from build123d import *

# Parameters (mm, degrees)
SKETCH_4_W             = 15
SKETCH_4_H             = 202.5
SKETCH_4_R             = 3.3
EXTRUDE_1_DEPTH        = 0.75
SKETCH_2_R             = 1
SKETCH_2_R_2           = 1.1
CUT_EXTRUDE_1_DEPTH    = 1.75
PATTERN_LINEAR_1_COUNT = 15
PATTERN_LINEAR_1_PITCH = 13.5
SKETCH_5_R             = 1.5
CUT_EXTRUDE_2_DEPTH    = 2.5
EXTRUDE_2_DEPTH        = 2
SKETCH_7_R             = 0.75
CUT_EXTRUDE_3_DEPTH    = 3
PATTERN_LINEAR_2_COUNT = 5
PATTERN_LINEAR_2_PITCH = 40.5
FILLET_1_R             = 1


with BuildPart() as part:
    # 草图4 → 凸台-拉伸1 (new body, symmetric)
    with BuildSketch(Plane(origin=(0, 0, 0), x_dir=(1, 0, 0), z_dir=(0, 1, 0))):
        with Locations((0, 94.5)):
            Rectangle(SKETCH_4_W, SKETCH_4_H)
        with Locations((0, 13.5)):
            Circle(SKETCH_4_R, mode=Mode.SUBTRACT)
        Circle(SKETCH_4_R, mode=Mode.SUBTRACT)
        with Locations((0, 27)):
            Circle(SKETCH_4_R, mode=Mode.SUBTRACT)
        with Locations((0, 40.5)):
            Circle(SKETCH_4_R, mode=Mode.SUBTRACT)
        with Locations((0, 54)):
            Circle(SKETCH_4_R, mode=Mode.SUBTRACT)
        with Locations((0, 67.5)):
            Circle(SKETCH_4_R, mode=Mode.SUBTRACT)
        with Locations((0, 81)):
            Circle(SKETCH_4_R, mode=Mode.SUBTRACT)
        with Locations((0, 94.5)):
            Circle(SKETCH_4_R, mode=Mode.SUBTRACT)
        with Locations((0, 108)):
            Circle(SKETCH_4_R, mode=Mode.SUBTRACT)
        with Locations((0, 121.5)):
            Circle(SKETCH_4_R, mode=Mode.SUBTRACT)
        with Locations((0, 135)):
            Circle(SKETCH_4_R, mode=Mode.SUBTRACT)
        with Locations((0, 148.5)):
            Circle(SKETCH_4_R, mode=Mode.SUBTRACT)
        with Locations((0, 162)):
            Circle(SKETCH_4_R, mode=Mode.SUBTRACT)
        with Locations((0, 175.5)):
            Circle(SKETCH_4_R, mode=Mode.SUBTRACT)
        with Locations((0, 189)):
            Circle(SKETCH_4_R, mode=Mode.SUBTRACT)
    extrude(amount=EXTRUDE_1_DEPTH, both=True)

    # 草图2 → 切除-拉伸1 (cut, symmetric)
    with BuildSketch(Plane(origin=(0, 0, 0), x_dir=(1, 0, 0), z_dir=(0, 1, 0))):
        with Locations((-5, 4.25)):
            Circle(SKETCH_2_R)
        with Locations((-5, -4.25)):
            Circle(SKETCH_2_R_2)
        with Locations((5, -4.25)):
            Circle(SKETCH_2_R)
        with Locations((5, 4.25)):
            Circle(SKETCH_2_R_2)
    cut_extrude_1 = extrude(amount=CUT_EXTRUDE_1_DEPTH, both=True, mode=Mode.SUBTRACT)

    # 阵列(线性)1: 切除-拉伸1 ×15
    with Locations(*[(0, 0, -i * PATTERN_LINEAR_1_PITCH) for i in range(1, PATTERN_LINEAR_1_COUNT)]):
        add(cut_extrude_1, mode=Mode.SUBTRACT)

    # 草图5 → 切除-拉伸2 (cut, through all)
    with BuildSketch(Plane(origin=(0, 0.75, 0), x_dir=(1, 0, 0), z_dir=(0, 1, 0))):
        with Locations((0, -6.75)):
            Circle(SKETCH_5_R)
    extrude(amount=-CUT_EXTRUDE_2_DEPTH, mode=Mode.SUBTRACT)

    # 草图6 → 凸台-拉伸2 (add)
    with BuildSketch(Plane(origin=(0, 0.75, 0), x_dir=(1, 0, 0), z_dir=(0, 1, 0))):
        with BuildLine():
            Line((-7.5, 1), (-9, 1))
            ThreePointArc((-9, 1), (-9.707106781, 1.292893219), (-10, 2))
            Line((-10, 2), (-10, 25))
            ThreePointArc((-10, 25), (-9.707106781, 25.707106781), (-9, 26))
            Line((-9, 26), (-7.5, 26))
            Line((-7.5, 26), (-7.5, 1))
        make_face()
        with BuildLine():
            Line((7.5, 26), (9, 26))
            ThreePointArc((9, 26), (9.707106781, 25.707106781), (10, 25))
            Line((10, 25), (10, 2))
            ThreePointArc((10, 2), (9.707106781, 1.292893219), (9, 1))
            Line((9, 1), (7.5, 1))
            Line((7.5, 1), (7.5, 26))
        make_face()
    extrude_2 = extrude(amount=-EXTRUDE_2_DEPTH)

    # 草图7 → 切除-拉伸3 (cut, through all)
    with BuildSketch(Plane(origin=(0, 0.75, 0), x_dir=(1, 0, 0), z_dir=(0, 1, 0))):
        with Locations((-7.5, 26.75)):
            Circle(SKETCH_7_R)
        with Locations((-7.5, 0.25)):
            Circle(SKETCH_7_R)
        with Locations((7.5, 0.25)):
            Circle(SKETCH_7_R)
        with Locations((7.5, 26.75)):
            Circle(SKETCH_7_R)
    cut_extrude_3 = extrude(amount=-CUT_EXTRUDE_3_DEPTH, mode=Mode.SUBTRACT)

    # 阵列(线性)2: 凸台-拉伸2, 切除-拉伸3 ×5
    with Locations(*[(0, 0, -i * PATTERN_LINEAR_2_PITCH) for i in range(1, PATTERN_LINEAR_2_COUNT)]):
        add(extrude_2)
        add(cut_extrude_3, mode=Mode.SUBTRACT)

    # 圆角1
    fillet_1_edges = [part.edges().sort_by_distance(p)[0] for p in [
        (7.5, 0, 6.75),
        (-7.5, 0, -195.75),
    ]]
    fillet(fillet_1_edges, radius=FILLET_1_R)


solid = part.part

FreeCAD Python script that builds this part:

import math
import FreeCAD as App
import Part
import Sketcher

V = App.Vector
Q = App.Units.Quantity


def edges_at(feature, points):
    """Names of the edges that pass closest to the given points."""
    edges = feature.Shape.Edges
    near = lambda p: min(range(len(edges)), key=lambda i: edges[i].distToShape(Part.Vertex(*p))[0])
    return sorted({f"Edge{near(p) + 1}" for p in points})


def add_polygon(sketch, points):
    """Adds a closed chain of lines whose ends are joined by coincident constraints."""
    first, n = sketch.GeometryCount, len(points)
    for a, b in zip(points, points[1:] + points[:1]):
        sketch.addGeometry(Part.LineSegment(App.Vector(*a, 0), App.Vector(*b, 0)), False)
    for i in range(n):
        sketch.addConstraint(Sketcher.Constraint("Coincident", first + i, 2, first + (i + 1) % n, 1))

doc = App.newDocument("Part")
params = doc.addObject("Spreadsheet::Sheet", "Params")
for row, (alias, value) in enumerate([
    ("sketch1_diameter", "6.6 mm"),
    ("sketch1_width", "15 mm"),
    ("sketch1_height", "202.5 mm"),
    ("pad1_length", "1.5 mm"),
    ("sketch2_diameter", "2 mm"),
    ("sketch2_diameter2", "2.2 mm"),
    ("pocket1_length", "3.5 mm"),
    ("linearpattern_pitch", "13.5 mm"),
    ("sketch3_diameter", "3 mm"),
    ("sketch4_radius", "1 mm"),
    ("sketch4_height", "25 mm"),
    ("sketch4_width", "1.5 mm"),
    ("pad2_length", "2 mm"),
    ("sketch5_diameter", "1.5 mm"),
    ("linearpattern2_pitch", "40.5 mm"),
    ("fillet_radius", "1 mm"),
], start=1):
    params.set(f"A{row}", alias)
    params.set(f"B{row}", "=" + value)
    params.setAlias(f"B{row}", alias)

body = doc.addObject("PartDesign::Body", "Body")

# Sketch on XZ plane
sketch1 = body.newObject("Sketcher::SketchObject", "Sketch")
sketch1.AttachmentSupport = (doc.getObject("XZ_Plane"), [""])
sketch1.MapMode = "FlatFace"
add_polygon(sketch1, [(-7.5, -195.8), (-7.5, 6.8), (7.5, 6.8), (7.5, -195.8)])  # lines 0-3
sketch1.addGeometry(Part.Circle(V(0, 0, 0), V(0, 0, 1), 3.3), False)  # 4
sketch1.addGeometry(Part.Circle(V(0, -13.5, 0), V(0, 0, 1), 3.3), False)  # 5
sketch1.addGeometry(Part.Circle(V(0, -27, 0), V(0, 0, 1), 3.3), False)  # 6
sketch1.addGeometry(Part.Circle(V(0, -40.5, 0), V(0, 0, 1), 3.3), False)  # 7
sketch1.addGeometry(Part.Circle(V(0, -54, 0), V(0, 0, 1), 3.3), False)  # 8
sketch1.addGeometry(Part.Circle(V(0, -67.5, 0), V(0, 0, 1), 3.3), False)  # 9
sketch1.addGeometry(Part.Circle(V(0, -81, 0), V(0, 0, 1), 3.3), False)  # 10
sketch1.addGeometry(Part.Circle(V(0, -94.5, 0), V(0, 0, 1), 3.3), False)  # 11
sketch1.addGeometry(Part.Circle(V(0, -108, 0), V(0, 0, 1), 3.3), False)  # 12
sketch1.addGeometry(Part.Circle(V(0, -121.5, 0), V(0, 0, 1), 3.3), False)  # 13
sketch1.addGeometry(Part.Circle(V(0, -135, 0), V(0, 0, 1), 3.3), False)  # 14
sketch1.addGeometry(Part.Circle(V(0, -148.5, 0), V(0, 0, 1), 3.3), False)  # 15
sketch1.addGeometry(Part.Circle(V(0, -162, 0), V(0, 0, 1), 3.3), False)  # 16
sketch1.addGeometry(Part.Circle(V(0, -175.5, 0), V(0, 0, 1), 3.3), False)  # 17
sketch1.addGeometry(Part.Circle(V(0, -189, 0), V(0, 0, 1), 3.3), False)  # 18
sketch1.addConstraint(Sketcher.Constraint("Vertical", 0))
sketch1.addConstraint(Sketcher.Constraint("Horizontal", 1))
sketch1.addConstraint(Sketcher.Constraint("Vertical", 2))
sketch1.addConstraint(Sketcher.Constraint("Horizontal", 3))
sketch1.addConstraint(Sketcher.Constraint("Coincident", 4, 3, -1, 1))
sketch1.addConstraint(Sketcher.Constraint("Equal", 4, 5))
sketch1.addConstraint(Sketcher.Constraint("Equal", 5, 6))
sketch1.addConstraint(Sketcher.Constraint("Equal", 6, 7))
sketch1.addConstraint(Sketcher.Constraint("Equal", 7, 8))
sketch1.addConstraint(Sketcher.Constraint("Equal", 8, 9))
sketch1.addConstraint(Sketcher.Constraint("Equal", 9, 10))
sketch1.addConstraint(Sketcher.Constraint("Equal", 10, 11))
sketch1.addConstraint(Sketcher.Constraint("Equal", 11, 12))
sketch1.addConstraint(Sketcher.Constraint("Equal", 12, 13))
sketch1.addConstraint(Sketcher.Constraint("Equal", 13, 14))
sketch1.addConstraint(Sketcher.Constraint("Equal", 14, 15))
sketch1.addConstraint(Sketcher.Constraint("Equal", 15, 16))
sketch1.addConstraint(Sketcher.Constraint("Equal", 16, 17))
sketch1.addConstraint(Sketcher.Constraint("Equal", 17, 18))
sketch1.addConstraint(Sketcher.Constraint("PointOnObject", 5, 3, -2))
sketch1.addConstraint(Sketcher.Constraint("PointOnObject", 6, 3, -2))
sketch1.addConstraint(Sketcher.Constraint("PointOnObject", 7, 3, -2))
sketch1.addConstraint(Sketcher.Constraint("PointOnObject", 8, 3, -2))
sketch1.addConstraint(Sketcher.Constraint("PointOnObject", 9, 3, -2))
sketch1.addConstraint(Sketcher.Constraint("PointOnObject", 10, 3, -2))
sketch1.addConstraint(Sketcher.Constraint("PointOnObject", 11, 3, -2))
sketch1.addConstraint(Sketcher.Constraint("PointOnObject", 12, 3, -2))
sketch1.addConstraint(Sketcher.Constraint("PointOnObject", 13, 3, -2))
sketch1.addConstraint(Sketcher.Constraint("PointOnObject", 14, 3, -2))
sketch1.addConstraint(Sketcher.Constraint("PointOnObject", 15, 3, -2))
sketch1.addConstraint(Sketcher.Constraint("PointOnObject", 16, 3, -2))
sketch1.addConstraint(Sketcher.Constraint("PointOnObject", 17, 3, -2))
sketch1.addConstraint(Sketcher.Constraint("PointOnObject", 18, 3, -2))
sketch1.addConstraint(Sketcher.Constraint("Diameter", 4, Q("6.6 mm")))
sketch1.addConstraint(Sketcher.Constraint("DistanceX", 1, 1, 1, 2, Q("15 mm")))
sketch1.addConstraint(Sketcher.Constraint("DistanceY", 0, 1, 0, 2, Q("202.5 mm")))
sketch1.addConstraint(Sketcher.Constraint("DistanceY", 6, 3, -1, 1, Q("27 mm")))
sketch1.addConstraint(Sketcher.Constraint("DistanceY", 8, 3, -1, 1, Q("54 mm")))
sketch1.addConstraint(Sketcher.Constraint("DistanceY", 10, 3, -1, 1, Q("81 mm")))
sketch1.addConstraint(Sketcher.Constraint("DistanceY", 12, 3, -1, 1, Q("108 mm")))
sketch1.addConstraint(Sketcher.Constraint("DistanceY", 14, 3, -1, 1, Q("135 mm")))
sketch1.addConstraint(Sketcher.Constraint("DistanceY", 16, 3, -1, 1, Q("162 mm")))
sketch1.addConstraint(Sketcher.Constraint("DistanceY", 18, 3, -1, 1, Q("189 mm")))
sketch1.addConstraint(Sketcher.Constraint("DistanceY", 7, 3, 5, 3, Q("27 mm")))
sketch1.addConstraint(Sketcher.Constraint("DistanceY", 9, 3, 7, 3, Q("27 mm")))
sketch1.addConstraint(Sketcher.Constraint("DistanceY", 11, 3, 9, 3, Q("27 mm")))
sketch1.addConstraint(Sketcher.Constraint("DistanceY", 13, 3, 11, 3, Q("27 mm")))
sketch1.addConstraint(Sketcher.Constraint("DistanceY", 15, 3, 13, 3, Q("27 mm")))
sketch1.addConstraint(Sketcher.Constraint("DistanceY", 17, 3, 15, 3, Q("27 mm")))
sketch1.addConstraint(Sketcher.Constraint("DistanceY", 5, 3, -1, 1, Q("13.5 mm")))
sketch1.addConstraint(Sketcher.Constraint("DistanceX", 0, 2, -1, 1, Q("7.5 mm")))
sketch1.addConstraint(Sketcher.Constraint("DistanceY", -1, 1, 0, 2, Q("6.75 mm")))
sketch1.setExpression("Constraints[37]", "Params.sketch1_diameter")
sketch1.setExpression("Constraints[38]", "Params.sketch1_width")
sketch1.setExpression("Constraints[39]", "Params.sketch1_height")
pad1 = body.newObject("PartDesign::Pad", "Pad")
pad1.Profile = sketch1
pad1.setExpression("Length", "Params.pad1_length")
pad1.Midplane = True

# Sketch on XZ plane
sketch2 = body.newObject("Sketcher::SketchObject", "Sketch001")
sketch2.AttachmentSupport = (doc.getObject("XZ_Plane"), [""])
sketch2.MapMode = "FlatFace"
sketch2.addGeometry(Part.Circle(V(-5, -4.2, 0), V(0, 0, 1), 1), False)
sketch2.addGeometry(Part.Circle(V(-5, 4.2, 0), V(0, 0, 1), 1.1), False)
sketch2.addGeometry(Part.Circle(V(5, 4.2, 0), V(0, 0, 1), 1), False)
sketch2.addGeometry(Part.Circle(V(5, -4.2, 0), V(0, 0, 1), 1.1), False)
sketch2.addConstraint(Sketcher.Constraint("Equal", 0, 2))
sketch2.addConstraint(Sketcher.Constraint("Equal", 1, 3))
sketch2.addConstraint(Sketcher.Constraint("Symmetric", 0, 3, 2, 3, -1, 1))
sketch2.addConstraint(Sketcher.Constraint("Symmetric", 1, 3, 3, 3, -1, 1))
sketch2.addConstraint(Sketcher.Constraint("Symmetric", 1, 3, 2, 3, -2))
sketch2.addConstraint(Sketcher.Constraint("Diameter", 0, Q("2 mm")))
sketch2.addConstraint(Sketcher.Constraint("Diameter", 1, Q("2.2 mm")))
sketch2.addConstraint(Sketcher.Constraint("DistanceX", 0, 3, -1, 1, Q("5 mm")))
sketch2.addConstraint(Sketcher.Constraint("DistanceY", 0, 3, 1, 3, Q("8.5 mm")))
sketch2.setExpression("Constraints[5]", "Params.sketch2_diameter")
sketch2.setExpression("Constraints[6]", "Params.sketch2_diameter2")
pocket1 = body.newObject("PartDesign::Pocket", "Pocket")
pocket1.Profile = sketch2
pocket1.setExpression("Length", "Params.pocket1_length")
pocket1.Midplane = True
doc.recompute()

linearpattern = body.newObject("PartDesign::LinearPattern", "LinearPattern")
linearpattern.Originals = [pocket1]
linearpattern.Direction = (doc.getObject("Z_Axis"), [""])
linearpattern.Mode = "offset"
linearpattern.setExpression("Offset", "Params.linearpattern_pitch")
linearpattern.Occurrences = 15
linearpattern.Reversed = True
body.Tip = linearpattern

# Sketch on XZ plane
sketch3 = body.newObject("Sketcher::SketchObject", "Sketch002")
sketch3.AttachmentSupport = (doc.getObject("XZ_Plane"), [""])
sketch3.MapMode = "FlatFace"
sketch3.AttachmentOffset = App.Placement(V(0, 0, -0.75), App.Rotation())
sketch3.addGeometry(Part.Circle(V(0, 6.8, 0), V(0, 0, 1), 1.5), False)
sketch3.addConstraint(Sketcher.Constraint("PointOnObject", 0, 3, -2))
sketch3.addConstraint(Sketcher.Constraint("Diameter", 0, Q("3 mm")))
sketch3.addConstraint(Sketcher.Constraint("DistanceY", -1, 1, 0, 3, Q("6.75 mm")))
sketch3.setExpression("Constraints[1]", "Params.sketch3_diameter")
pocket2 = body.newObject("PartDesign::Pocket", "Pocket001")
pocket2.Profile = sketch3
pocket2.Type = "ThroughAll"
pocket2.Reversed = True

# Sketch on XZ plane
sketch4 = body.newObject("Sketcher::SketchObject", "Sketch003")
sketch4.AttachmentSupport = (doc.getObject("XZ_Plane"), [""])
sketch4.MapMode = "FlatFace"
sketch4.AttachmentOffset = App.Placement(V(0, 0, -0.75), App.Rotation())
sketch4.addGeometry(Part.LineSegment(V(-9, -1, 0), V(-7.5, -1, 0)), False)
sketch4.addGeometry(Part.LineSegment(V(-7.5, -1, 0), V(-7.5, -26, 0)), False)
sketch4.addGeometry(Part.LineSegment(V(-7.5, -26, 0), V(-9, -26, 0)), False)
sketch4.addGeometry(Part.ArcOfCircle(Part.Circle(V(-9, -25, 0), V(0, 0, 1), 1), math.radians(-180), math.radians(-90)), False)
sketch4.addGeometry(Part.LineSegment(V(-10, -25, 0), V(-10, -2, 0)), False)
sketch4.addGeometry(Part.ArcOfCircle(Part.Circle(V(-9, -2, 0), V(0, 0, 1), 1), math.radians(90), math.radians(180)), False)
sketch4.addGeometry(Part.LineSegment(V(9, -26, 0), V(7.5, -26, 0)), False)
sketch4.addGeometry(Part.LineSegment(V(7.5, -26, 0), V(7.5, -1, 0)), False)
sketch4.addGeometry(Part.LineSegment(V(7.5, -1, 0), V(9, -1, 0)), False)
sketch4.addGeometry(Part.ArcOfCircle(Part.Circle(V(9, -2, 0), V(0, 0, 1), 1), math.radians(0), math.radians(90)), False)
sketch4.addGeometry(Part.LineSegment(V(10, -2, 0), V(10, -25, 0)), False)
sketch4.addGeometry(Part.ArcOfCircle(Part.Circle(V(9, -25, 0), V(0, 0, 1), 1), math.radians(-90), math.radians(0)), False)
sketch4.addConstraint(Sketcher.Constraint("Coincident", 0, 2, 1, 1))
sketch4.addConstraint(Sketcher.Constraint("Coincident", 1, 2, 2, 1))
sketch4.addConstraint(Sketcher.Constraint("Tangent", 2, 2, 3, 2))
sketch4.addConstraint(Sketcher.Constraint("Tangent", 3, 1, 4, 1))
sketch4.addConstraint(Sketcher.Constraint("Tangent", 4, 2, 5, 2))
sketch4.addConstraint(Sketcher.Constraint("Tangent", 5, 1, 0, 1))
sketch4.addConstraint(Sketcher.Constraint("Coincident", 6, 2, 7, 1))
sketch4.addConstraint(Sketcher.Constraint("Coincident", 7, 2, 8, 1))
sketch4.addConstraint(Sketcher.Constraint("Tangent", 8, 2, 9, 2))
sketch4.addConstraint(Sketcher.Constraint("Tangent", 9, 1, 10, 1))
sketch4.addConstraint(Sketcher.Constraint("Tangent", 10, 2, 11, 2))
sketch4.addConstraint(Sketcher.Constraint("Tangent", 11, 1, 6, 1))
sketch4.addConstraint(Sketcher.Constraint("Horizontal", 0))
sketch4.addConstraint(Sketcher.Constraint("Vertical", 1))
sketch4.addConstraint(Sketcher.Constraint("Horizontal", 2))
sketch4.addConstraint(Sketcher.Constraint("Vertical", 4))
sketch4.addConstraint(Sketcher.Constraint("Horizontal", 6))
sketch4.addConstraint(Sketcher.Constraint("Vertical", 7))
sketch4.addConstraint(Sketcher.Constraint("Horizontal", 8))
sketch4.addConstraint(Sketcher.Constraint("Vertical", 10))
sketch4.addConstraint(Sketcher.Constraint("Equal", 3, 5))
sketch4.addConstraint(Sketcher.Constraint("Equal", 5, 9))
sketch4.addConstraint(Sketcher.Constraint("Equal", 9, 11))
sketch4.addConstraint(Sketcher.Constraint("Symmetric", 5, 3, 9, 3, -2))
sketch4.addConstraint(Sketcher.Constraint("Symmetric", 1, 2, 6, 2, -2))
sketch4.addConstraint(Sketcher.Constraint("Radius", 3, Q("1 mm")))
sketch4.addConstraint(Sketcher.Constraint("DistanceY", 1, 2, 1, 1, Q("25 mm")))
sketch4.addConstraint(Sketcher.Constraint("DistanceX", 0, 1, 0, 2, Q("1.5 mm")))
sketch4.addConstraint(Sketcher.Constraint("DistanceX", 3, 3, -1, 1, Q("9 mm")))
sketch4.addConstraint(Sketcher.Constraint("DistanceY", 3, 3, -1, 1, Q("25 mm")))
sketch4.setExpression("Constraints[25]", "Params.sketch4_radius")
sketch4.setExpression("Constraints[26]", "Params.sketch4_height")
sketch4.setExpression("Constraints[27]", "Params.sketch4_width")
pad2 = body.newObject("PartDesign::Pad", "Pad001")
pad2.Profile = sketch4
pad2.setExpression("Length", "Params.pad2_length")

# Sketch on XZ plane
sketch5 = body.newObject("Sketcher::SketchObject", "Sketch004")
sketch5.AttachmentSupport = (doc.getObject("XZ_Plane"), [""])
sketch5.MapMode = "FlatFace"
sketch5.AttachmentOffset = App.Placement(V(0, 0, -0.75), App.Rotation())
sketch5.addGeometry(Part.Circle(V(-7.5, -26.8, 0), V(0, 0, 1), 0.8), False)
sketch5.addGeometry(Part.Circle(V(-7.5, -0.2, 0), V(0, 0, 1), 0.8), False)
sketch5.addGeometry(Part.Circle(V(7.5, -0.2, 0), V(0, 0, 1), 0.8), False)
sketch5.addGeometry(Part.Circle(V(7.5, -26.8, 0), V(0, 0, 1), 0.8), False)
sketch5.addConstraint(Sketcher.Constraint("Equal", 0, 1))
sketch5.addConstraint(Sketcher.Constraint("Equal", 1, 2))
sketch5.addConstraint(Sketcher.Constraint("Equal", 2, 3))
sketch5.addConstraint(Sketcher.Constraint("Symmetric", 1, 3, 2, 3, -2))
sketch5.addConstraint(Sketcher.Constraint("Symmetric", 0, 3, 3, 3, -2))
sketch5.addConstraint(Sketcher.Constraint("Vertical", 0, 3, 1, 3))
sketch5.addConstraint(Sketcher.Constraint("Diameter", 0, Q("1.5 mm")))
sketch5.addConstraint(Sketcher.Constraint("DistanceX", 1, 3, 2, 3, Q("15 mm")))
sketch5.addConstraint(Sketcher.Constraint("DistanceY", 0, 3, 1, 3, Q("26.5 mm")))
sketch5.addConstraint(Sketcher.Constraint("DistanceY", 0, 3, -1, 1, Q("26.75 mm")))
sketch5.setExpression("Constraints[6]", "Params.sketch5_diameter")
pocket3 = body.newObject("PartDesign::Pocket", "Pocket002")
pocket3.Profile = sketch5
pocket3.Type = "ThroughAll"
pocket3.Reversed = True
doc.recompute()

linearpattern2 = body.newObject("PartDesign::LinearPattern", "LinearPattern001")
linearpattern2.Originals = [pad2, pocket3]
linearpattern2.Direction = (doc.getObject("Z_Axis"), [""])
linearpattern2.Mode = "offset"
linearpattern2.setExpression("Offset", "Params.linearpattern2_pitch")
linearpattern2.Occurrences = 5
linearpattern2.Reversed = True
body.Tip = linearpattern2
doc.recompute()

fillet = body.newObject("PartDesign::Fillet", "Fillet")
fillet.Base = (linearpattern2, edges_at(linearpattern2, [(7.5, 0, 6.75), (-7.5, 0, -195.75)]))
fillet.setExpression("Radius", "Params.fillet_radius")

doc.recompute()
